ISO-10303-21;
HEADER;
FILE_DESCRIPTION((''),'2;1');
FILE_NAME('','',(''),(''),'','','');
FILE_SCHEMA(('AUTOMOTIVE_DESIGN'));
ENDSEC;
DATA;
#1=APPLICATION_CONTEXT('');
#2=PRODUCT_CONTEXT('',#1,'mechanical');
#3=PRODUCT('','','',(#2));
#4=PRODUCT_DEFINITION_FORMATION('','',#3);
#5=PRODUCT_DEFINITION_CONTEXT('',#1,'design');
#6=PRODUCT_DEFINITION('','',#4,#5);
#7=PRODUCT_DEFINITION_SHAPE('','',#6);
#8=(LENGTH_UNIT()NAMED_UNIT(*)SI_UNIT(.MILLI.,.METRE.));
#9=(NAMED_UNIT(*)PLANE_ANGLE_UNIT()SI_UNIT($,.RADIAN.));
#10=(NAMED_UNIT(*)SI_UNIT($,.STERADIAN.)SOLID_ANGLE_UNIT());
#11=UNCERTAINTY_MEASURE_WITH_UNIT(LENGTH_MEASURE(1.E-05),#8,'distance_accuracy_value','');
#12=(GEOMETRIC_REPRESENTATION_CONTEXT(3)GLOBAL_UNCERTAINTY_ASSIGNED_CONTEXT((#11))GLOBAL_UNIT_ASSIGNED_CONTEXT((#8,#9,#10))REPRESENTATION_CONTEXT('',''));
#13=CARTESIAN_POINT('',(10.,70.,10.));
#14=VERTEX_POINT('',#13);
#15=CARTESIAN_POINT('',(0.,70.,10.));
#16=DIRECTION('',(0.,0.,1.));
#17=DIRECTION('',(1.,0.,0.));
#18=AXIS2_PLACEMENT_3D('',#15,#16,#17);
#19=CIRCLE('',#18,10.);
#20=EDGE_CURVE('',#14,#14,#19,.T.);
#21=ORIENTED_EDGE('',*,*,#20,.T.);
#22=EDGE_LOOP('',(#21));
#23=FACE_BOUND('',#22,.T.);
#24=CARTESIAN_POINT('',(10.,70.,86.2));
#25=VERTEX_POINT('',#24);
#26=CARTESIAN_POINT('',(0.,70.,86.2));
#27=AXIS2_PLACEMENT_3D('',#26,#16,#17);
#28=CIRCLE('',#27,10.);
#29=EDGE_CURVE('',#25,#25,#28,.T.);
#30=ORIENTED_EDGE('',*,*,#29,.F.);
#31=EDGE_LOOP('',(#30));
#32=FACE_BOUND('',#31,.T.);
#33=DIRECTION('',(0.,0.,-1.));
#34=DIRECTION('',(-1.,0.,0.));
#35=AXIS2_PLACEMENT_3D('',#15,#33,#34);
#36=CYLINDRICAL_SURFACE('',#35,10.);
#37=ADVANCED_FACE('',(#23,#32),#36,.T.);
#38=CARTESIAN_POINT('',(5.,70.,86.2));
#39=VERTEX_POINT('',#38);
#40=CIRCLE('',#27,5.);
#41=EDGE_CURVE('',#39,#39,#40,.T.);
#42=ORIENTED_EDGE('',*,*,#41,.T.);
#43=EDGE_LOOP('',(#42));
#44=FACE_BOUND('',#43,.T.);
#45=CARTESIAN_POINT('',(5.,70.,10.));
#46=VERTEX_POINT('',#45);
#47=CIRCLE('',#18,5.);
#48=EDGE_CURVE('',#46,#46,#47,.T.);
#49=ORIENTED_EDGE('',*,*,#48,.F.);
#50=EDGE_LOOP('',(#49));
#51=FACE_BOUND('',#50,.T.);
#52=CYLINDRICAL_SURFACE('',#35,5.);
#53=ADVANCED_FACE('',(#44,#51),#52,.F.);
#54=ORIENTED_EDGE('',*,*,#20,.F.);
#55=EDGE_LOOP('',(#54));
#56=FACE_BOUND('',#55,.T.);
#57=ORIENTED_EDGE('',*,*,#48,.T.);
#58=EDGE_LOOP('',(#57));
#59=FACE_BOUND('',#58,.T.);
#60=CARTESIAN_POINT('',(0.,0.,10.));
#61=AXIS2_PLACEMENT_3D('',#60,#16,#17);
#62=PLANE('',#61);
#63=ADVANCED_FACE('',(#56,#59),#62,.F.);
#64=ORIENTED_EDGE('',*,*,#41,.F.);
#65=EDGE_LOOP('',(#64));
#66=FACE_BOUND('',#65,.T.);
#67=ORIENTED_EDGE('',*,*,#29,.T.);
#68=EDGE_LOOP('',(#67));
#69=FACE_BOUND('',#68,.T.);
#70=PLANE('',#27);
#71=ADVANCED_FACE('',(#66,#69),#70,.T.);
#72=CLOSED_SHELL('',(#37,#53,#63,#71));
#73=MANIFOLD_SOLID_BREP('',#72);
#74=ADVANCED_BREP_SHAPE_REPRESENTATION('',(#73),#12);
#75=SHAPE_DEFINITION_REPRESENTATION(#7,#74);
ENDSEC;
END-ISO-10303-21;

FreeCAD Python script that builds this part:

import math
import FreeCAD as App
import Part
import Sketcher

V = App.Vector

doc = App.newDocument("Part")
body = doc.addObject("PartDesign::Body", "Body")

sketch1 = body.newObject("Sketcher::SketchObject", "Sketch")
sketch1.AttachmentSupport = (doc.getObject("XY_Plane"), [""])
sketch1.MapMode = "FlatFace"
sketch1.addGeometry(Part.LineSegment(V(-9.9, 71.4, 0), V(-19.8, 2.9, 0)), False)
sketch1.addGeometry(Part.ArcOfCircle(Part.Circle(V(0, 0, 0), V(0, 0, 1), 20), math.radians(172), math.radians(368)), False)
sketch1.addGeometry(Part.LineSegment(V(19.8, 2.9, 0), V(9.9, 71.4, 0)), False)
sketch1.addGeometry(Part.ArcOfCircle(Part.Circle(V(0, 70, 0), V(0, 0, 1), 10), math.radians(8), math.radians(172)), False)
sketch1.addGeometry(Part.LineSegment(V(-2.5, 9.7, 0), V(-2.5, 12, 0)), False)
sketch1.addGeometry(Part.LineSegment(V(-2.5, 12, 0), V(2.5, 12, 0)), False)
sketch1.addGeometry(Part.LineSegment(V(2.5, 12, 0), V(2.5, 9.7, 0)), False)
sketch1.addGeometry(Part.ArcOfCircle(Part.Circle(V(0, 0, 0), V(0, 0, 1), 10), math.radians(104), math.radians(436)), False)
sketch1.addGeometry(Part.Circle(V(0, 70, 0), V(0, 0, 1), 5), False)
sketch1.addConstraint(Sketcher.Constraint("Tangent", 0, 2, 1, 1))
sketch1.addConstraint(Sketcher.Constraint("Tangent", 1, 2, 2, 1))
sketch1.addConstraint(Sketcher.Constraint("Tangent", 2, 2, 3, 1))
sketch1.addConstraint(Sketcher.Constraint("Tangent", 3, 2, 0, 1))
sketch1.addConstraint(Sketcher.Constraint("Coincident", 4, 2, 5, 1))
sketch1.addConstraint(Sketcher.Constraint("Coincident", 5, 2, 6, 1))
sketch1.addConstraint(Sketcher.Constraint("Coincident", 6, 2, 7, 2))
sketch1.addConstraint(Sketcher.Constraint("Coincident", 7, 1, 4, 1))
sketch1.addConstraint(Sketcher.Constraint("Vertical", 4))
sketch1.addConstraint(Sketcher.Constraint("Horizontal", 5))
sketch1.addConstraint(Sketcher.Constraint("Vertical", 6))
sketch1.addConstraint(Sketcher.Constraint("Coincident", 1, 3, -1, 1))
sketch1.addConstraint(Sketcher.Constraint("Coincident", 7, 3, -1, 1))
sketch1.addConstraint(Sketcher.Constraint("Coincident", 8, 3, 3, 3))
sketch1.addConstraint(Sketcher.Constraint("Equal", 3, 7))
sketch1.addConstraint(Sketcher.Constraint("PointOnObject", 3, 3, -2))
sketch1.addConstraint(Sketcher.Constraint("Horizontal", 6, 2, 7, 1))
sketch1.addConstraint(Sketcher.Constraint("Diameter", 8, 10.0))
sketch1.addConstraint(Sketcher.Constraint("Radius", 1, 20.0))
sketch1.addConstraint(Sketcher.Constraint("Radius", 3, 10.0))
sketch1.addConstraint(Sketcher.Constraint("DistanceX", 5, 1, 5, 2, 5.0))
sketch1.addConstraint(Sketcher.Constraint("DistanceY", -1, 1, 3, 3, 70.0))
sketch1.addConstraint(Sketcher.Constraint("DistanceY", -1, 1, 4, 2, 12.0))
pad1 = body.newObject("PartDesign::Pad", "Pad")
pad1.Profile = sketch1
pad1.Length = 10

sketch2 = body.newObject("Sketcher::SketchObject", "Sketch001")
sketch2.AttachmentSupport = (doc.getObject("XY_Plane"), [""])
sketch2.MapMode = "FlatFace"
sketch2.AttachmentOffset = App.Placement(V(0, 0, 10), App.Rotation())
sketch2.addGeometry(Part.Circle(V(0, 70, 0), V(0, 0, 1), 10), False)
sketch2.addGeometry(Part.Circle(V(0, 70, 0), V(0, 0, 1), 5), False)
sketch2.addConstraint(Sketcher.Constraint("Coincident", 1, 3, 0, 3))
sketch2.addConstraint(Sketcher.Constraint("PointOnObject", 0, 3, -2))
sketch2.addConstraint(Sketcher.Constraint("Diameter", 0, 20.0))
sketch2.addConstraint(Sketcher.Constraint("Diameter", 1, 10.0))
sketch2.addConstraint(Sketcher.Constraint("DistanceY", -1, 1, 0, 3, 70.0))
pad2 = body.newObject("PartDesign::Pad", "Pad001")
pad2.Profile = sketch2
pad2.Length = 76.2

sketch3 = body.newObject("Sketcher::SketchObject", "Sketch002")
sketch3.AttachmentSupport = (doc.getObject("XY_Plane"), [""])
sketch3.MapMode = "FlatFace"
sketch3.AttachmentOffset = App.Placement(V(0, 0, 86.2), App.Rotation())
sketch3.addGeometry(Part.LineSegment(V(-9.9, 71.4, 0), V(-19.8, 2.9, 0)), False)
sketch3.addGeometry(Part.ArcOfCircle(Part.Circle(V(0, 0, 0), V(0, 0, 1), 20), math.radians(172), math.radians(368)), False)
sketch3.addGeometry(Part.LineSegment(V(19.8, 2.9, 0), V(9.9, 71.4, 0)), False)
sketch3.addGeometry(Part.ArcOfCircle(Part.Circle(V(0, 70, 0), V(0, 0, 1), 10), math.radians(8), math.radians(172)), False)
sketch3.addGeometry(Part.LineSegment(V(-2.5, 9.7, 0), V(-2.5, 12, 0)), False)
sketch3.addGeometry(Part.LineSegment(V(-2.5, 12, 0), V(2.5, 12, 0)), False)
sketch3.addGeometry(Part.LineSegment(V(2.5, 12, 0), V(2.5, 9.7, 0)), False)
sketch3.addGeometry(Part.ArcOfCircle(Part.Circle(V(0, 0, 0), V(0, 0, 1), 10), math.radians(104), math.radians(436)), False)
sketch3.addGeometry(Part.Circle(V(0, 70, 0), V(0, 0, 1), 5), False)
sketch3.addConstraint(Sketcher.Constraint("Tangent", 0, 2, 1, 1))
sketch3.addConstraint(Sketcher.Constraint("Tangent", 1, 2, 2, 1))
sketch3.addConstraint(Sketcher.Constraint("Tangent", 2, 2, 3, 1))
sketch3.addConstraint(Sketcher.Constraint("Tangent", 3, 2, 0, 1))
sketch3.addConstraint(Sketcher.Constraint("Coincident", 4, 2, 5, 1))
sketch3.addConstraint(Sketcher.Constraint("Coincident", 5, 2, 6, 1))
sketch3.addConstraint(Sketcher.Constraint("Coincident", 6, 2, 7, 2))
sketch3.addConstraint(Sketcher.Constraint("Coincident", 7, 1, 4, 1))
sketch3.addConstraint(Sketcher.Constraint("Vertical", 4))
sketch3.addConstraint(Sketcher.Constraint("Horizontal", 5))
sketch3.addConstraint(Sketcher.Constraint("Vertical", 6))
sketch3.addConstraint(Sketcher.Constraint("Coincident", 1, 3, -1, 1))
sketch3.addConstraint(Sketcher.Constraint("Coincident", 7, 3, -1, 1))
sketch3.addConstraint(Sketcher.Constraint("Coincident", 8, 3, 3, 3))
sketch3.addConstraint(Sketcher.Constraint("Equal", 3, 7))
sketch3.addConstraint(Sketcher.Constraint("PointOnObject", 3, 3, -2))
sketch3.addConstraint(Sketcher.Constraint("Horizontal", 6, 2, 7, 1))
sketch3.addConstraint(Sketcher.Constraint("Diameter", 8, 10.0))
sketch3.addConstraint(Sketcher.Constraint("Radius", 1, 20.0))
sketch3.addConstraint(Sketcher.Constraint("Radius", 3, 10.0))
sketch3.addConstraint(Sketcher.Constraint("DistanceX", 5, 1, 5, 2, 5.0))
sketch3.addConstraint(Sketcher.Constraint("DistanceY", -1, 1, 3, 3, 70.0))
sketch3.addConstraint(Sketcher.Constraint("DistanceY", -1, 1, 4, 2, 12.0))
pad3 = body.newObject("PartDesign::Pad", "Pad002")
pad3.Profile = sketch3
pad3.Length = 22

sketch4 = body.newObject("Sketcher::SketchObject", "Sketch003")
sketch4.AttachmentSupport = (doc.getObject("XY_Plane"), [""])
sketch4.MapMode = "FlatFace"
sketch4.AttachmentOffset = App.Placement(V(0, 0, 108.2), App.Rotation())
sketch4.addGeometry(Part.Circle(V(0, 0, 0), V(0, 0, 1), 65), False)
sketch4.addConstraint(Sketcher.Constraint("Coincident", 0, 3, -1, 1))
sketch4.addConstraint(Sketcher.Constraint("Diameter", 0, 130.0))
pad4 = body.newObject("PartDesign::Pad", "Pad003")
pad4.Profile = sketch4
pad4.Length = 22
pad4.Reversed = True

sketch5 = body.newObject("Sketcher::SketchObject", "Sketch004")
sketch5.AttachmentSupport = (doc.getObject("XY_Plane"), [""])
sketch5.MapMode = "FlatFace"
sketch5.AttachmentOffset = App.Placement(V(0, 0, 108.2), App.Rotation())
sketch5.addGeometry(Part.Circle(V(0, 0, 0), V(0, 0, 1), 55), False)
sketch5.addConstraint(Sketcher.Constraint("Coincident", 0, 3, -1, 1))
sketch5.addConstraint(Sketcher.Constraint("Diameter", 0, 110.0))
pocket1 = body.newObject("PartDesign::Pocket", "Pocket")
pocket1.Profile = sketch5
pocket1.Length = 22

sketch6 = body.newObject("Sketcher::SketchObject", "Sketch005")
sketch6.AttachmentSupport = (doc.getObject("XY_Plane"), [""])
sketch6.MapMode = "FlatFace"
sketch6.AttachmentOffset = App.Placement(V(0, 0, 108.2), App.Rotation())
sketch6.addGeometry(Part.Circle(V(0, 0, 0), V(0, 0, 1), 80), False)
sketch6.addConstraint(Sketcher.Constraint("Coincident", 0, 3, -1, 1))
sketch6.addConstraint(Sketcher.Constraint("Diameter", 0, 160.0))
pocket2 = body.newObject("PartDesign::Pocket", "Pocket001")
pocket2.Profile = sketch6
pocket2.Length = 22

sketch7 = body.newObject("Sketcher::SketchObject", "Sketch006")
sketch7.AttachmentSupport = (doc.getObject("XY_Plane"), [""])
sketch7.MapMode = "FlatFace"
sketch7.addGeometry(Part.Circle(V(0, 0, 0), V(0, 0, 1), 80), False)
sketch7.addConstraint(Sketcher.Constraint("Coincident", 0, 3, -1, 1))
sketch7.addConstraint(Sketcher.Constraint("Diameter", 0, 160.0))
pocket3 = body.newObject("PartDesign::Pocket", "Pocket002")
pocket3.Profile = sketch7
pocket3.Length = 10
pocket3.Reversed = True

doc.recompute()
